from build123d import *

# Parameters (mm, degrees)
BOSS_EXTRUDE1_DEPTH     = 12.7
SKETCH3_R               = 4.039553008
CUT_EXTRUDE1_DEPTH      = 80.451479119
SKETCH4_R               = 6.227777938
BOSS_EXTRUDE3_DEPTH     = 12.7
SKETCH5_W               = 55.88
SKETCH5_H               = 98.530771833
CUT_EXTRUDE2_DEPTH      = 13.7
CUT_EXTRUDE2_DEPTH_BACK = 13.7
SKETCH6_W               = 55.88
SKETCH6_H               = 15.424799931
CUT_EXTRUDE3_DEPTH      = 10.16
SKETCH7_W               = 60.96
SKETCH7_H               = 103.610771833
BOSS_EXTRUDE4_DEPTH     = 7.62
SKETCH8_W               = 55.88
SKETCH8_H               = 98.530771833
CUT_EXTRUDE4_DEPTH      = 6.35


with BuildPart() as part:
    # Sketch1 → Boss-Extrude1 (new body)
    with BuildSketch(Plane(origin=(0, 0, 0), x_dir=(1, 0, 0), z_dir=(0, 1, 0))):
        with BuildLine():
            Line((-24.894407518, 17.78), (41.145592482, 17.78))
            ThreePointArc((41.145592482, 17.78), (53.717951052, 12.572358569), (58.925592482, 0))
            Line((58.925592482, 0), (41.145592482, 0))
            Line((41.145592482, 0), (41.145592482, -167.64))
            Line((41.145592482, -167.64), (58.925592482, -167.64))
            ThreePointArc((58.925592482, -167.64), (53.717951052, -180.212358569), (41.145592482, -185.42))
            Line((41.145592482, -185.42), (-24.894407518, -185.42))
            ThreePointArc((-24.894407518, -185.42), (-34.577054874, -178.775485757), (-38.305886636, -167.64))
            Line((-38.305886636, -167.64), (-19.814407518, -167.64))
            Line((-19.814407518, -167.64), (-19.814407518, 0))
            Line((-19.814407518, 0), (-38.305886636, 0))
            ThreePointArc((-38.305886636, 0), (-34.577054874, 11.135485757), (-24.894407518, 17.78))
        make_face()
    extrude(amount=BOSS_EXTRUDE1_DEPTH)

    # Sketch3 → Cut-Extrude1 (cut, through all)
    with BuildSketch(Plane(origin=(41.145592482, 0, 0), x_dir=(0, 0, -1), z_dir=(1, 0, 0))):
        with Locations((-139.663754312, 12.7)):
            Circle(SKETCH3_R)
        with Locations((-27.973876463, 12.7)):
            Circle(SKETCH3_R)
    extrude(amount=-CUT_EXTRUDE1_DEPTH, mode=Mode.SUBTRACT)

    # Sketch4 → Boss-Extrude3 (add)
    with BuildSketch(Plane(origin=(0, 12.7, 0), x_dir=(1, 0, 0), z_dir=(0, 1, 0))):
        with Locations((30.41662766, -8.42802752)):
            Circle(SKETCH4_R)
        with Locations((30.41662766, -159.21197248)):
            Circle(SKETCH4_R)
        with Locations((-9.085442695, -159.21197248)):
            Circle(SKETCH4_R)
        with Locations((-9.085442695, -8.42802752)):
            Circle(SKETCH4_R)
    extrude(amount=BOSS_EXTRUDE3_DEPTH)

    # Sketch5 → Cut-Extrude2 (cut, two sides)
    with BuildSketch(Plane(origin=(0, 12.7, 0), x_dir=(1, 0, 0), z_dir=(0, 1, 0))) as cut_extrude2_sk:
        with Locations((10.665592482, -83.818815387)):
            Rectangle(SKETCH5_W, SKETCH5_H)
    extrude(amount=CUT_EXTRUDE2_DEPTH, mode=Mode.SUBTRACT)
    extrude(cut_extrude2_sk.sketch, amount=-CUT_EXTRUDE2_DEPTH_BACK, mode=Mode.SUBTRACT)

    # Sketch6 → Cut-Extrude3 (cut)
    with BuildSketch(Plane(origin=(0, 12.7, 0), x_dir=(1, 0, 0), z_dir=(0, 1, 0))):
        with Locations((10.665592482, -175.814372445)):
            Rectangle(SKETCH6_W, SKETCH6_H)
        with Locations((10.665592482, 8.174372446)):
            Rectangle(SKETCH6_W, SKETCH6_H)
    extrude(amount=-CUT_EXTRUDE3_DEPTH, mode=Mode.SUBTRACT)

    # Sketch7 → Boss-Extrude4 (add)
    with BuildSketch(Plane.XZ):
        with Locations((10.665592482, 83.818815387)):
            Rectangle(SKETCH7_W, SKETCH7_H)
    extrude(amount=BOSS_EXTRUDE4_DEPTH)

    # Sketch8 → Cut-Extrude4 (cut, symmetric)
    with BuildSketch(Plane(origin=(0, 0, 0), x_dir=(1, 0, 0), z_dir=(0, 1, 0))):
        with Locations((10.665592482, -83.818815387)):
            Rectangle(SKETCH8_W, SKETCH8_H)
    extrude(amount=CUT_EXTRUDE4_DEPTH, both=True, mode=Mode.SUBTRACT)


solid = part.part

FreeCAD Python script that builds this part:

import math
import FreeCAD as App
import Part
import Sketcher
Q = App.Units.Quantity

doc = App.newDocument("Part")
params = doc.addObject("Spreadsheet::Sheet", "Params")
for row, (alias, value) in enumerate([
    ("sketch1_radius", "0.7 in"),
    ("sketch1_width", "2.6 in"),
    ("sketch1_height", "6.6 in"),
    ("pad1_length", "0.5 in"),
    ("pad2_length", "0.5 in"),
    ("sketch4_width", "2.2 in"),
    ("sketch5_width", "2.2 in"),
    ("pocket3_length", "0.4 in"),
    ("sketch6_width", "2.4 in"),
    ("pad3_length", "0.3 in"),
    ("sketch7_width", "2.2 in"),
    ("pocket4_length", "0.5 in"),
], start=1):
    params.set(f"A{row}", alias)
    params.set(f"B{row}", "=" + value)
    params.setAlias(f"B{row}", alias)

body = doc.addObject("PartDesign::Body", "Body")

# Sketch on XZ plane
sketch1 = doc.addObject("Sketcher::SketchObject", "Sketch")
body.addObject(sketch1)
sketch1.AttachmentSupport = (doc.XZ_Plane, [""])
sketch1.MapMode = "FlatFace"
sketch1.addGeometry([
    Part.LineSegment(App.Vector(41, -18, 0), App.Vector(-25, -18, 0)),  # 0
    Part.ArcOfCircle(Part.Circle(App.Vector(-20, 0, 0), App.Vector(0, 0, 1), 18), math.radians(180), math.radians(254)),  # 1
    Part.LineSegment(App.Vector(-38, 0, 0), App.Vector(-20, 0, 0)),  # 2
    Part.LineSegment(App.Vector(-20, 0, 0), App.Vector(-20, 168, 0)),  # 3
    Part.LineSegment(App.Vector(-20, 168, 0), App.Vector(-38, 168, 0)),  # 4
    Part.ArcOfCircle(Part.Circle(App.Vector(-20, 168, 0), App.Vector(0, 0, 1), 18), math.radians(106), math.radians(180)),  # 5
    Part.LineSegment(App.Vector(-25, 185, 0), App.Vector(41, 185, 0)),  # 6
    Part.ArcOfCircle(Part.Circle(App.Vector(41, 168, 0), App.Vector(0, 0, 1), 18), math.radians(0), math.radians(90)),  # 7
    Part.LineSegment(App.Vector(59, 168, 0), App.Vector(41, 168, 0)),  # 8
    Part.LineSegment(App.Vector(41, 168, 0), App.Vector(41, 0, 0)),  # 9
    Part.LineSegment(App.Vector(41, 0, 0), App.Vector(59, 0, 0)),  # 10
    Part.ArcOfCircle(Part.Circle(App.Vector(41, 0, 0), App.Vector(0, 0, 1), 18), math.radians(-90), math.radians(0)),  # 11
], False)
sketch1.addConstraint([
    Sketcher.Constraint("Coincident", 0, 2, 1, 2),
    Sketcher.Constraint("Coincident", 1, 1, 2, 1),
    Sketcher.Constraint("Coincident", 2, 2, 3, 1),
    Sketcher.Constraint("Coincident", 3, 2, 4, 1),
    Sketcher.Constraint("Coincident", 4, 2, 5, 2),
    Sketcher.Constraint("Coincident", 5, 1, 6, 1),
    Sketcher.Constraint("Tangent", 6, 2, 7, 2),
    Sketcher.Constraint("Coincident", 7, 1, 8, 1),
    Sketcher.Constraint("Coincident", 8, 2, 9, 1),
    Sketcher.Constraint("Coincident", 9, 2, 10, 1),
    Sketcher.Constraint("Coincident", 10, 2, 11, 2),
    Sketcher.Constraint("Tangent", 11, 1, 0, 1),
    Sketcher.Constraint("Horizontal", 0),
    Sketcher.Constraint("Horizontal", 2),
    Sketcher.Constraint("Vertical", 3),
    Sketcher.Constraint("Horizontal", 4),
    Sketcher.Constraint("Horizontal", 6),
    Sketcher.Constraint("Horizontal", 8),
    Sketcher.Constraint("Vertical", 9),
    Sketcher.Constraint("Horizontal", 10),
    Sketcher.Constraint("Coincident", 2, 2, 1, 3),
    Sketcher.Constraint("Coincident", 3, 2, 5, 3),
    Sketcher.Constraint("Coincident", 8, 2, 7, 3),
    Sketcher.Constraint("Coincident", 9, 2, 11, 3),
    Sketcher.Constraint("Equal", 1, 5),
    Sketcher.Constraint("Equal", 7, 11),
    Sketcher.Constraint("PointOnObject", 1, 3, -1),
    Sketcher.Constraint("PointOnObject", 11, 3, -1),
    Sketcher.Constraint("Horizontal", 5, 3, 7, 3),
    Sketcher.Constraint("Radius", 7, Q("0.7 in")),
    Sketcher.Constraint("DistanceX", 0, 2, 0, 1, Q("2.6 in")),
    Sketcher.Constraint("DistanceY", 3, 1, 3, 2, Q("6.6 in")),
    Sketcher.Constraint("DistanceX", 5, 3, 7, 3, Q("2.4 in")),
    Sketcher.Constraint("DistanceX", 1, 3, -1, 1, 19.814408),
])
sketch1.setExpression("Constraints[29]", "Params.sketch1_radius")
sketch1.setExpression("Constraints[30]", "Params.sketch1_width")
sketch1.setExpression("Constraints[31]", "Params.sketch1_height")
pad1 = doc.addObject("PartDesign::Pad", "Pad")
body.addObject(pad1)
pad1.Profile = sketch1
pad1.setExpression("Length", "Params.pad1_length")
pad1.Reversed = True

# Sketch on YZ plane
sketch2 = doc.addObject("Sketcher::SketchObject", "Sketch001")
body.addObject(sketch2)
sketch2.AttachmentSupport = (doc.YZ_Plane, [""])
sketch2.MapMode = "FlatFace"
sketch2.AttachmentOffset = App.Placement(App.Vector(0, 0, 41.145592), App.Rotation())
sketch2.addGeometry([
    Part.Circle(App.Vector(12.7, 139.7, 0), App.Vector(0, 0, 1), 4),
    Part.Circle(App.Vector(12.7, 28, 0), App.Vector(0, 0, 1), 4),
], False)
sketch2.addConstraint([
    Sketcher.Constraint("Equal", 0, 1),
    Sketcher.Constraint("Vertical", 0, 3, 1, 3),
    Sketcher.Constraint("DistanceX", -1, 1, 0, 3, Q("0.5 in")),
    Sketcher.Constraint("Diameter", 0, 8.079106),
    Sketcher.Constraint("DistanceY", -1, 1, 0, 3, 139.663754),
    Sketcher.Constraint("DistanceY", -1, 1, 1, 3, 27.973876),
])
pocket1 = doc.addObject("PartDesign::Pocket", "Pocket")
body.addObject(pocket1)
pocket1.Profile = sketch2
pocket1.Type = "ThroughAll"

# Sketch on XZ plane
sketch3 = doc.addObject("Sketcher::SketchObject", "Sketch002")
body.addObject(sketch3)
sketch3.AttachmentSupport = (doc.XZ_Plane, [""])
sketch3.MapMode = "FlatFace"
sketch3.AttachmentOffset = App.Placement(App.Vector(0, 0, -0.5 * 25.4), App.Rotation())
sketch3.addGeometry([
    Part.Circle(App.Vector(30, 8, 0), App.Vector(0, 0, 1), 6),
    Part.Circle(App.Vector(30, 159, 0), App.Vector(0, 0, 1), 6),
    Part.Circle(App.Vector(-9, 159, 0), App.Vector(0, 0, 1), 6),
    Part.Circle(App.Vector(-9, 8, 0), App.Vector(0, 0, 1), 6),
], False)
sketch3.addConstraint([
    Sketcher.Constraint("Equal", 0, 1),
    Sketcher.Constraint("Equal", 1, 2),
    Sketcher.Constraint("Equal", 2, 3),
    Sketcher.Constraint("Horizontal", 1, 3, 2, 3),
    Sketcher.Constraint("Horizontal", 0, 3, 3, 3),
    Sketcher.Constraint("Vertical", 0, 3, 1, 3),
    Sketcher.Constraint("Vertical", 2, 3, 3, 3),
    Sketcher.Constraint("Diameter", 0, 12.455556),
    Sketcher.Constraint("DistanceX", 2, 3, 1, 3, 39.50207),
    Sketcher.Constraint("DistanceX", -1, 1, 0, 3, 30.416628),
    Sketcher.Constraint("DistanceY", -1, 1, 0, 3, 8.428028),
    Sketcher.Constraint("DistanceY", -1, 1, 1, 3, 159.211972),
])
pad2 = doc.addObject("PartDesign::Pad", "Pad001")
body.addObject(pad2)
pad2.Profile = sketch3
pad2.setExpression("Length", "Params.pad2_length")
pad2.Reversed = True

# Sketch on XZ plane
sketch4 = doc.addObject("Sketcher::SketchObject", "Sketch003")
body.addObject(sketch4)
sketch4.AttachmentSupport = (doc.XZ_Plane, [""])
sketch4.MapMode = "FlatFace"
sketch4.AttachmentOffset = App.Placement(App.Vector(0, 0, -0.5 * 25.4), App.Rotation())
sketch4.addGeometry([
    Part.LineSegment(App.Vector(-17, 35, 0), App.Vector(-17, 133, 0)),
    Part.LineSegment(App.Vector(-17, 133, 0), App.Vector(39, 133, 0)),
    Part.LineSegment(App.Vector(39, 133, 0), App.Vector(39, 35, 0)),
    Part.LineSegment(App.Vector(39, 35, 0), App.Vector(-17, 35, 0)),
], False)
sketch4.addConstraint([
    Sketcher.Constraint("Coincident", 0, 2, 1, 1),
    Sketcher.Constraint("Coincident", 1, 2, 2, 1),
    Sketcher.Constraint("Coincident", 2, 2, 3, 1),
    Sketcher.Constraint("Coincident", 3, 2, 0, 1),
    Sketcher.Constraint("Vertical", 0),
    Sketcher.Constraint("Horizontal", 1),
    Sketcher.Constraint("Vertical", 2),
    Sketcher.Constraint("Horizontal", 3),
    Sketcher.Constraint("DistanceX", 1, 1, 1, 2, Q("2.2 in")),
    Sketcher.Constraint("DistanceY", 0, 1, 0, 2, 98.530772),
    Sketcher.Constraint("DistanceY", -1, 1, 0, 2, 133.084201),
    Sketcher.Constraint("DistanceX", 0, 2, -1, 1, 17.274408),
])
sketch4.setExpression("Constraints[8]", "Params.sketch4_width")
pocket2 = doc.addObject("PartDesign::Pocket", "Pocket001")
body.addObject(pocket2)
pocket2.Profile = sketch4
pocket2.Type = "ThroughAll"
pocket2.Midplane = True

# Sketch on XZ plane
sketch5 = doc.addObject("Sketcher::SketchObject", "Sketch004")
body.addObject(sketch5)
sketch5.AttachmentSupport = (doc.XZ_Plane, [""])
sketch5.MapMode = "FlatFace"
sketch5.AttachmentOffset = App.Placement(App.Vector(0, 0, -0.5 * 25.4), App.Rotation())
sketch5.addGeometry([
    Part.LineSegment(App.Vector(-17, 168, 0), App.Vector(-17, 184, 0)),  # 0
    Part.LineSegment(App.Vector(-17, 184, 0), App.Vector(39, 184, 0)),  # 1
    Part.LineSegment(App.Vector(39, 184, 0), App.Vector(39, 168, 0)),  # 2
    Part.LineSegment(App.Vector(39, 168, 0), App.Vector(-17, 168, 0)),  # 3
    Part.LineSegment(App.Vector(-17, -16, 0), App.Vector(-17, 0, 0)),  # 4
    Part.LineSegment(App.Vector(-17, 0, 0), App.Vector(39, 0, 0)),  # 5
    Part.LineSegment(App.Vector(39, 0, 0), App.Vector(39, -16, 0)),  # 6
    Part.LineSegment(App.Vector(39, -16, 0), App.Vector(-17, -16, 0)),  # 7
], False)
sketch5.addConstraint([
    Sketcher.Constraint("Coincident", 0, 2, 1, 1),
    Sketcher.Constraint("Coincident", 1, 2, 2, 1),
    Sketcher.Constraint("Coincident", 2, 2, 3, 1),
    Sketcher.Constraint("Coincident", 3, 2, 0, 1),
    Sketcher.Constraint("Coincident", 4, 2, 5, 1),
    Sketcher.Constraint("Coincident", 5, 2, 6, 1),
    Sketcher.Constraint("Coincident", 6, 2, 7, 1),
    Sketcher.Constraint("Coincident", 7, 2, 4, 1),
    Sketcher.Constraint("Vertical", 0),
    Sketcher.Constraint("Horizontal", 1),
    Sketcher.Constraint("Vertical", 2),
    Sketcher.Constraint("Horizontal", 3),
    Sketcher.Constraint("Vertical", 4),
    Sketcher.Constraint("Horizontal", 5),
    Sketcher.Constraint("Vertical", 6),
    Sketcher.Constraint("Horizontal", 7),
    Sketcher.Constraint("Vertical", 3, 2, 4, 2),
    Sketcher.Constraint("Vertical", 2, 2, 5, 2),
    Sketcher.Constraint("Equal", 2, 4),
    Sketcher.Constraint("DistanceX", 1, 1, 1, 2, Q("2.2 in")),
    Sketcher.Constraint("DistanceY", 0, 1, 0, 2, 15.4248),
    Sketcher.Constraint("DistanceX", 0, 2, -1, 1, 17.274408),
    Sketcher.Constraint("DistanceY", -1, 1, 0, 2, 183.526772),
    Sketcher.Constraint("DistanceY", 4, 2, -1, 1, 0.461972),
])
sketch5.setExpression("Constraints[19]", "Params.sketch5_width")
pocket3 = doc.addObject("PartDesign::Pocket", "Pocket002")
body.addObject(pocket3)
pocket3.Profile = sketch5
pocket3.setExpression("Length", "Params.pocket3_length")
pocket3.Reversed = True

# Sketch on XZ plane
sketch6 = doc.addObject("Sketcher::SketchObject", "Sketch005")
body.addObject(sketch6)
sketch6.AttachmentSupport = (doc.XZ_Plane, [""])
sketch6.MapMode = "FlatFace"
sketch6.addGeometry([
    Part.LineSegment(App.Vector(-20, 136, 0), App.Vector(-20, 32, 0)),
    Part.LineSegment(App.Vector(-20, 32, 0), App.Vector(41, 32, 0)),
    Part.LineSegment(App.Vector(41, 32, 0), App.Vector(41, 136, 0)),
    Part.LineSegment(App.Vector(41, 136, 0), App.Vector(-20, 136, 0)),
], False)
sketch6.addConstraint([
    Sketcher.Constraint("Coincident", 0, 2, 1, 1),
    Sketcher.Constraint("Coincident", 1, 2, 2, 1),
    Sketcher.Constraint("Coincident", 2, 2, 3, 1),
    Sketcher.Constraint("Coincident", 3, 2, 0, 1),
    Sketcher.Constraint("Vertical", 0),
    Sketcher.Constraint("Horizontal", 1),
    Sketcher.Constraint("Vertical", 2),
    Sketcher.Constraint("Horizontal", 3),
    Sketcher.Constraint("DistanceX", 1, 1, 1, 2, Q("2.4 in")),
    Sketcher.Constraint("DistanceY", 0, 2, 0, 1, 103.610772),
    Sketcher.Constraint("DistanceY", -1, 1, 2, 2, 135.624201),
    Sketcher.Constraint("DistanceX", 0, 2, -1, 1, 19.814408),
])
sketch6.setExpression("Constraints[8]", "Params.sketch6_width")
pad3 = doc.addObject("PartDesign::Pad", "Pad002")
body.addObject(pad3)
pad3.Profile = sketch6
pad3.setExpression("Length", "Params.pad3_length")

# Sketch on XZ plane
sketch7 = doc.addObject("Sketcher::SketchObject", "Sketch006")
body.addObject(sketch7)
sketch7.AttachmentSupport = (doc.XZ_Plane, [""])
sketch7.MapMode = "FlatFace"
sketch7.addGeometry([
    Part.LineSegment(App.Vector(-17, 35, 0), App.Vector(-17, 133, 0)),
    Part.LineSegment(App.Vector(-17, 133, 0), App.Vector(39, 133, 0)),
    Part.LineSegment(App.Vector(39, 133, 0), App.Vector(39, 35, 0)),
    Part.LineSegment(App.Vector(39, 35, 0), App.Vector(-17, 35, 0)),
], False)
sketch7.addConstraint([
    Sketcher.Constraint("Coincident", 0, 2, 1, 1),
    Sketcher.Constraint("Coincident", 1, 2, 2, 1),
    Sketcher.Constraint("Coincident", 2, 2, 3, 1),
    Sketcher.Constraint("Coincident", 3, 2, 0, 1),
    Sketcher.Constraint("Vertical", 0),
    Sketcher.Constraint("Horizontal", 1),
    Sketcher.Constraint("Vertical", 2),
    Sketcher.Constraint("Horizontal", 3),
    Sketcher.Constraint("DistanceX", 1, 1, 1, 2, Q("2.2 in")),
    Sketcher.Constraint("DistanceY", 0, 1, 0, 2, 98.530772),
    Sketcher.Constraint("DistanceY", -1, 1, 0, 2, 133.084201),
    Sketcher.Constraint("DistanceX", 0, 2, -1, 1, 17.274408),
])
sketch7.setExpression("Constraints[8]", "Params.sketch7_width")
pocket4 = doc.addObject("PartDesign::Pocket", "Pocket003")
body.addObject(pocket4)
pocket4.Profile = sketch7
pocket4.setExpression("Length", "Params.pocket4_length")
pocket4.Midplane = True

doc.recompute()
